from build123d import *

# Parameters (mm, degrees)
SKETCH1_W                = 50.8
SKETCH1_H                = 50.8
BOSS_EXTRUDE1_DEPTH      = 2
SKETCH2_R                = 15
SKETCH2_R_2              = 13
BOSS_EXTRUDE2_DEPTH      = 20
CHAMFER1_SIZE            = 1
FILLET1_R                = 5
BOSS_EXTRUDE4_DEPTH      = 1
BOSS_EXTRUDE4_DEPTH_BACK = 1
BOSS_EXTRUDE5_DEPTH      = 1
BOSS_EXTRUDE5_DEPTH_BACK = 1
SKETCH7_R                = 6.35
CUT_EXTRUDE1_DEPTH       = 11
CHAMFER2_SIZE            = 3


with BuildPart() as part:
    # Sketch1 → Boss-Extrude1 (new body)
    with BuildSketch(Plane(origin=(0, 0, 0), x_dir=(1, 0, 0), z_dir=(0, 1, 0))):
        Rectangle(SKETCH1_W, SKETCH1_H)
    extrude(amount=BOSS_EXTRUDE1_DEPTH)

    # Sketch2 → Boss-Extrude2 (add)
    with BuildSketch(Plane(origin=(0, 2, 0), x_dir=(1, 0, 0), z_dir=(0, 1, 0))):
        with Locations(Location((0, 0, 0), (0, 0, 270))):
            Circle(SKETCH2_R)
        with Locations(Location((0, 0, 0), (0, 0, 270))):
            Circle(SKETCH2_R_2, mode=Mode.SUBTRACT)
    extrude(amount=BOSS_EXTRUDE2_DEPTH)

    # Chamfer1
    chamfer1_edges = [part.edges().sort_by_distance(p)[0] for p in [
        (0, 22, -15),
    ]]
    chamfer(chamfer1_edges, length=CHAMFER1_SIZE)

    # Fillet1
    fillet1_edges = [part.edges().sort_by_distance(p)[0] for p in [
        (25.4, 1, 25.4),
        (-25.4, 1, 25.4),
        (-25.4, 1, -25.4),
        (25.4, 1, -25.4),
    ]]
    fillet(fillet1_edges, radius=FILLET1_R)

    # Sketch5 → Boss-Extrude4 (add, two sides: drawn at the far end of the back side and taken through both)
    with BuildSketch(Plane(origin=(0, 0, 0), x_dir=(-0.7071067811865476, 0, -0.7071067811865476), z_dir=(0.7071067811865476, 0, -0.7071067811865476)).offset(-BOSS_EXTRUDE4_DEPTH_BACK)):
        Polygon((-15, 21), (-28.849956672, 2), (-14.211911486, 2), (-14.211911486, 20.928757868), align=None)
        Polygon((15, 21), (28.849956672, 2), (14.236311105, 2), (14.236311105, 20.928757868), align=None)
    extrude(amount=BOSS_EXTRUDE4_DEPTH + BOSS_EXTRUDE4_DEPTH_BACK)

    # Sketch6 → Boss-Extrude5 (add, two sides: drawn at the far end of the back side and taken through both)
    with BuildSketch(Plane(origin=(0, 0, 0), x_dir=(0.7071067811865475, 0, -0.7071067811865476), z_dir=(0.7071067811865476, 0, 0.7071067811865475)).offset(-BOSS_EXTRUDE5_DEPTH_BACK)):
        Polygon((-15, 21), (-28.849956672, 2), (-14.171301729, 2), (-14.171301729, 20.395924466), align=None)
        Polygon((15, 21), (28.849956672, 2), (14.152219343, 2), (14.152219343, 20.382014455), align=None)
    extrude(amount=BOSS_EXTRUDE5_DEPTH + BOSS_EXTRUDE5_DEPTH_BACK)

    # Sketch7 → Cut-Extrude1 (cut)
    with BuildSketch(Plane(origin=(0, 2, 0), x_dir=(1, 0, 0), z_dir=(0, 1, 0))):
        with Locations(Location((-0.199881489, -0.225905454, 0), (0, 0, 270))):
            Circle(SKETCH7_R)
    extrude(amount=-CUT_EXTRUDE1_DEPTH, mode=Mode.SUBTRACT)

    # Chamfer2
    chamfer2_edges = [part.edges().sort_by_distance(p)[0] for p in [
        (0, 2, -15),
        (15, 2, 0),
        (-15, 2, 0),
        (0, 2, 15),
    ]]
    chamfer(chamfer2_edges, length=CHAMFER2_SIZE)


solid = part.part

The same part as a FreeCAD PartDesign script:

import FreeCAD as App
import Part
import Sketcher
from FreeCAD import Vector
Q = App.Units.Quantity


def edges_at(feature, points):
    """Names of the edges that pass closest to the given points."""
    edges = feature.Shape.Edges
    near = lambda p: min(range(len(edges)), key=lambda i: edges[i].distToShape(Part.Vertex(*p))[0])
    return sorted({f"Edge{near(p) + 1}" for p in points})


def add_polygon(sketch, points):
    """Adds a closed chain of lines whose ends are joined by coincident constraints."""
    first, n = sketch.GeometryCount, len(points)
    for a, b in zip(points, points[1:] + points[:1]):
        sketch.addGeometry(Part.LineSegment(App.Vector(*a, 0), App.Vector(*b, 0)), False)
    for i in range(n):
        sketch.addConstraint(Sketcher.Constraint("Coincident", first + i, 2, first + (i + 1) % n, 1))

doc = App.newDocument("Part")
body = doc.addObject("PartDesign::Body", "Body")

# Sketch on XZ plane
sketch1 = body.newObject("Sketcher::SketchObject", "Sketch")
sketch1.AttachmentSupport = (doc.getObject("XZ_Plane"), [""])
sketch1.MapMode = "FlatFace"
add_polygon(sketch1, [(-25, -25), (-25, 25), (25, 25), (25, -25)])  # lines 0-3
sketch1.addConstraint(Sketcher.Constraint("Vertical", 0))
sketch1.addConstraint(Sketcher.Constraint("Horizontal", 1))
sketch1.addConstraint(Sketcher.Constraint("Vertical", 2))
sketch1.addConstraint(Sketcher.Constraint("Horizontal", 3))
sketch1.addConstraint(Sketcher.Constraint("Symmetric", 0, 2, 2, 2, -1, 1))
sketch1.addConstraint(Sketcher.Constraint("Equal", 3, 0))
sketch1.addConstraint(Sketcher.Constraint("DistanceX", 1, 1, 1, 2, Q("50.8 mm")))
pad1 = body.newObject("PartDesign::Pad", "Pad")
pad1.Profile = sketch1
pad1.Length = 2
pad1.Reversed = True

# Sketch on XZ plane
sketch2 = body.newObject("Sketcher::SketchObject", "Sketch001")
sketch2.AttachmentSupport = (doc.getObject("XZ_Plane"), [""])
sketch2.MapMode = "FlatFace"
sketch2.AttachmentOffset = App.Placement(Vector(0, 0, -2), App.Rotation())
sketch2.addGeometry(Part.Circle(Vector(0, 0, 0), Vector(0, 0, 1), 15), False)
sketch2.addGeometry(Part.Circle(Vector(0, 0, 0), Vector(0, 0, 1), 13), False)
sketch2.addConstraint(Sketcher.Constraint("Coincident", 0, 3, -1, 1))
sketch2.addConstraint(Sketcher.Constraint("Coincident", 1, 3, -1, 1))
sketch2.addConstraint(Sketcher.Constraint("Diameter", 0, Q("30 mm")))
sketch2.addConstraint(Sketcher.Constraint("Diameter", 1, Q("26 mm")))
pad2 = body.newObject("PartDesign::Pad", "Pad001")
pad2.Profile = sketch2
pad2.Length = 20
pad2.Reversed = True
doc.recompute()

chamfer = body.newObject("PartDesign::Chamfer", "Chamfer")
chamfer.Base = (pad2, edges_at(pad2, [(0, 22, -15)]))
chamfer.Size = 1
doc.recompute()

fillet = body.newObject("PartDesign::Fillet", "Fillet")
fillet.Base = (chamfer, edges_at(chamfer, [
    (25.4, 1, 25.4),
    (-25.4, 1, 25.4),
    (-25.4, 1, -25.4),
    (25.4, 1, -25.4),
]))
fillet.Radius = 5

# Sketch on an angled plane
sketch3 = body.newObject("Sketcher::SketchObject", "Sketch002")
sketch3.Placement = App.Placement(Vector(0, 0, 0), App.Rotation(Vector(-0.707106781, 0, -0.707106781), Vector(0, 0.999999999, 0), Vector(0.707106781, 0, -0.707106781), "ZXY"))
add_polygon(sketch3, [(-15, 21), (-28.8, 2), (-14.2, 2), (-14.2, 20.9)])  # lines 0-3
add_polygon(sketch3, [(28.8, 2), (15, 21), (14.2, 20.9), (14.2, 2)])  # lines 4-7
sketch3.addConstraint(Sketcher.Constraint("Horizontal", 1))
sketch3.addConstraint(Sketcher.Constraint("Vertical", 2))
sketch3.addConstraint(Sketcher.Constraint("Vertical", 6))
sketch3.addConstraint(Sketcher.Constraint("Horizontal", 7))
sketch3.addConstraint(Sketcher.Constraint("Symmetric", 3, 2, 4, 2, -2))
sketch3.addConstraint(Sketcher.Constraint("Symmetric", 0, 2, 7, 2, -2))
sketch3.addConstraint(Sketcher.Constraint("Horizontal", 2, 2, 5, 2))
sketch3.addConstraint(Sketcher.Constraint("DistanceY", -1, 1, 0, 2, Q("2 mm")))
sketch3.addConstraint(Sketcher.Constraint("DistanceX", 3, 2, -1, 1, Q("15 mm")))
sketch3.addConstraint(Sketcher.Constraint("DistanceY", -1, 1, 3, 2, Q("21 mm")))
sketch3.addConstraint(Sketcher.Constraint("Angle", 0, Q("-126.089995 deg")))
sketch3.addConstraint(Sketcher.Constraint("DistanceX", 1, 1, 1, 2, Q("14.638045 mm")))
sketch3.addConstraint(Sketcher.Constraint("DistanceX", 7, 1, 7, 2, Q("14.613646 mm")))
sketch3.addConstraint(Sketcher.Constraint("DistanceY", 2, 1, 2, 2, Q("18.928758 mm")))
pad3 = body.newObject("PartDesign::Pad", "Pad002")
pad3.Profile = sketch3
pad3.Type = "TwoLengths"
pad3.Length = 1
pad3.Length2 = 1

# Sketch on an angled plane
sketch4 = body.newObject("Sketcher::SketchObject", "Sketch003")
sketch4.Placement = App.Placement(Vector(0, 0, 0), App.Rotation(Vector(0.707106781, 0, -0.707106781), Vector(0, 0.999999999, 0), Vector(0.707106781, 0, 0.707106781), "ZXY"))
add_polygon(sketch4, [(-15, 21), (-28.8, 2), (-14.2, 2), (-14.2, 20.4)])  # lines 0-3
add_polygon(sketch4, [(28.8, 2), (15, 21), (14.2, 20.4), (14.2, 2)])  # lines 4-7
sketch4.addConstraint(Sketcher.Constraint("Horizontal", 1))
sketch4.addConstraint(Sketcher.Constraint("Vertical", 2))
sketch4.addConstraint(Sketcher.Constraint("Vertical", 6))
sketch4.addConstraint(Sketcher.Constraint("Horizontal", 7))
sketch4.addConstraint(Sketcher.Constraint("Symmetric", 3, 2, 4, 2, -2))
sketch4.addConstraint(Sketcher.Constraint("Symmetric", 0, 2, 7, 2, -2))
sketch4.addConstraint(Sketcher.Constraint("Perpendicular", 0, 3))
sketch4.addConstraint(Sketcher.Constraint("Perpendicular", 4, 5))
sketch4.addConstraint(Sketcher.Constraint("DistanceY", -1, 1, 0, 2, Q("2 mm")))
sketch4.addConstraint(Sketcher.Constraint("DistanceX", 3, 2, -1, 1, Q("15 mm")))
sketch4.addConstraint(Sketcher.Constraint("DistanceY", -1, 1, 3, 2, Q("21 mm")))
sketch4.addConstraint(Sketcher.Constraint("Angle", 0, Q("-126.089995 deg")))
sketch4.addConstraint(Sketcher.Constraint("Distance", 3, Q("1.025499 mm")))
sketch4.addConstraint(Sketcher.Constraint("DistanceX", 7, 1, 7, 2, Q("14.697737 mm")))
pad4 = body.newObject("PartDesign::Pad", "Pad003")
pad4.Profile = sketch4
pad4.Type = "TwoLengths"
pad4.Length = 1
pad4.Length2 = 1

# Sketch on XZ plane
sketch5 = body.newObject("Sketcher::SketchObject", "Sketch004")
sketch5.AttachmentSupport = (doc.getObject("XZ_Plane"), [""])
sketch5.MapMode = "FlatFace"
sketch5.AttachmentOffset = App.Placement(Vector(0, 0, -2), App.Rotation())
sketch5.addGeometry(Part.Circle(Vector(0, 0, 0), Vector(0, 0, 1), 6), False)
sketch5.addConstraint(Sketcher.Constraint("Diameter", 0, Q("12.7 mm")))
sketch5.addConstraint(Sketcher.Constraint("DistanceX", 0, 3, -1, 1, Q("0.199881 mm")))
sketch5.addConstraint(Sketcher.Constraint("DistanceY", -1, 1, 0, 3, Q("0.225905 mm")))
pocket1 = body.newObject("PartDesign::Pocket", "Pocket")
pocket1.Profile = sketch5
pocket1.Length = 11
pocket1.Reversed = True
doc.recompute()

chamfer2 = body.newObject("PartDesign::Chamfer", "Chamfer001")
chamfer2.Base = (pocket1, edges_at(pocket1, [
    (0, 2, -15),
    (15, 2, 0),
    (-15, 2, 0),
    (0, 2, 15),
]))
chamfer2.Size = 3

doc.recompute()
